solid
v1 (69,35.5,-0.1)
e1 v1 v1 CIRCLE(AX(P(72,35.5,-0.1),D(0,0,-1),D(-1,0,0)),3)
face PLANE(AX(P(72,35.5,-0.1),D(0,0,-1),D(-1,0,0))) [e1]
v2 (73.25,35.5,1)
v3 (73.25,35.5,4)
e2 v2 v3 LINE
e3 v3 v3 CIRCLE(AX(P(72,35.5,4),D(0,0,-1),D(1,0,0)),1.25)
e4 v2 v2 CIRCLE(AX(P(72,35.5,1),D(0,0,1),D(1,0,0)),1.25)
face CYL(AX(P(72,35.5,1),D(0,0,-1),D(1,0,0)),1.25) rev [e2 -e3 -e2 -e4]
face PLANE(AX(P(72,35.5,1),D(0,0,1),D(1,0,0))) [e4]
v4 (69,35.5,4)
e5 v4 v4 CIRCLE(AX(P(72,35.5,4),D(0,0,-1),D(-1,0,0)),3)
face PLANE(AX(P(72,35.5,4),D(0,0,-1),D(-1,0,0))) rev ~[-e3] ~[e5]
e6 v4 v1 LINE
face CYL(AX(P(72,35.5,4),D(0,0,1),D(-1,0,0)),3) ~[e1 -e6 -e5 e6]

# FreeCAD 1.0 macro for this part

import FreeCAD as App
import Part
import Sketcher
from FreeCAD import Vector
Q = App.Units.Quantity

doc = App.newDocument("Part")
params = doc.addObject("Spreadsheet::Sheet", "Params")
for row, (alias, value) in enumerate([
    ("sketch1_diameter", "2.5 mm"),
    ("pad1_length", "5 mm"),
    ("sketch2_diameter", "6 mm"),
    ("pad2_length", "4.1 mm"),
], start=1):
    params.set(f"A{row}", alias)
    params.set(f"B{row}", "=" + value)
    params.setAlias(f"B{row}", alias)

body = doc.addObject("PartDesign::Body", "Body")

# Sketch on YZ plane
sketch1 = doc.addObject("Sketcher::SketchObject", "Sketch")
body.addObject(sketch1)
sketch1.AttachmentSupport = (doc.YZ_Plane, [""])
sketch1.MapMode = "FlatFace"
sketch1.AttachmentOffset = App.Placement(Vector(0, 0, 2), App.Rotation())
sketch1.addGeometry(Part.Circle(Vector(6, 26, 0), Vector(0, 0, 1), 1.2), False)
sketch1.addConstraint(Sketcher.Constraint("Diameter", 0, Q("2.5 mm")))
sketch1.addConstraint(Sketcher.Constraint("DistanceX", -1, 1, 0, 3, Q("6 mm")))
sketch1.addConstraint(Sketcher.Constraint("DistanceY", -1, 1, 0, 3, Q("26 mm")))
sketch1.setExpression("Constraints[0]", "Params.sketch1_diameter")
pad1 = doc.addObject("PartDesign::Pad", "Pad")
body.addObject(pad1)
pad1.Profile = sketch1
pad1.setExpression("Length", "Params.pad1_length")
pad1.Reversed = True
body2 = doc.addObject("PartDesign::Body", "Body001")

# Sketch on YZ plane
sketch2 = doc.addObject("Sketcher::SketchObject", "Sketch001")
body2.addObject(sketch2)
sketch2.AttachmentSupport = (doc.getObject("YZ_Plane001"), [""])
sketch2.MapMode = "FlatFace"
sketch2.AttachmentOffset = App.Placement(Vector(0, 0, -1), App.Rotation())
sketch2.addGeometry(Part.Circle(Vector(6, 26, 0), Vector(0, 0, 1), 3), False)
sketch2.addConstraint(Sketcher.Constraint("Diameter", 0, Q("6 mm")))
sketch2.addConstraint(Sketcher.Constraint("DistanceX", -1, 1, 0, 3, Q("6 mm")))
sketch2.addConstraint(Sketcher.Constraint("DistanceY", -1, 1, 0, 3, Q("26 mm")))
sketch2.setExpression("Constraints[0]", "Params.sketch2_diameter")
pad2 = doc.addObject("PartDesign::Pad", "Pad001")
body2.addObject(pad2)
pad2.Profile = sketch2
pad2.setExpression("Length", "Params.pad2_length")
doc.recompute()

boolean = doc.addObject("PartDesign::Boolean", "Boolean")
body2.addObject(boolean)
boolean.Type = "Cut"
boolean.addObjects([body])
body3 = doc.addObject("PartDesign::Body", "Body002")
doc.recompute()

body2.Placement = App.Placement(Vector(46, 29.5, 3), App.Rotation(Vector(0, 1, 0), 90))
boolean2 = doc.addObject("PartDesign::Boolean", "Boolean001")
body3.addObject(boolean2)
boolean2.Type = "Fuse"
boolean2.addObjects([body2])

doc.recompute()
